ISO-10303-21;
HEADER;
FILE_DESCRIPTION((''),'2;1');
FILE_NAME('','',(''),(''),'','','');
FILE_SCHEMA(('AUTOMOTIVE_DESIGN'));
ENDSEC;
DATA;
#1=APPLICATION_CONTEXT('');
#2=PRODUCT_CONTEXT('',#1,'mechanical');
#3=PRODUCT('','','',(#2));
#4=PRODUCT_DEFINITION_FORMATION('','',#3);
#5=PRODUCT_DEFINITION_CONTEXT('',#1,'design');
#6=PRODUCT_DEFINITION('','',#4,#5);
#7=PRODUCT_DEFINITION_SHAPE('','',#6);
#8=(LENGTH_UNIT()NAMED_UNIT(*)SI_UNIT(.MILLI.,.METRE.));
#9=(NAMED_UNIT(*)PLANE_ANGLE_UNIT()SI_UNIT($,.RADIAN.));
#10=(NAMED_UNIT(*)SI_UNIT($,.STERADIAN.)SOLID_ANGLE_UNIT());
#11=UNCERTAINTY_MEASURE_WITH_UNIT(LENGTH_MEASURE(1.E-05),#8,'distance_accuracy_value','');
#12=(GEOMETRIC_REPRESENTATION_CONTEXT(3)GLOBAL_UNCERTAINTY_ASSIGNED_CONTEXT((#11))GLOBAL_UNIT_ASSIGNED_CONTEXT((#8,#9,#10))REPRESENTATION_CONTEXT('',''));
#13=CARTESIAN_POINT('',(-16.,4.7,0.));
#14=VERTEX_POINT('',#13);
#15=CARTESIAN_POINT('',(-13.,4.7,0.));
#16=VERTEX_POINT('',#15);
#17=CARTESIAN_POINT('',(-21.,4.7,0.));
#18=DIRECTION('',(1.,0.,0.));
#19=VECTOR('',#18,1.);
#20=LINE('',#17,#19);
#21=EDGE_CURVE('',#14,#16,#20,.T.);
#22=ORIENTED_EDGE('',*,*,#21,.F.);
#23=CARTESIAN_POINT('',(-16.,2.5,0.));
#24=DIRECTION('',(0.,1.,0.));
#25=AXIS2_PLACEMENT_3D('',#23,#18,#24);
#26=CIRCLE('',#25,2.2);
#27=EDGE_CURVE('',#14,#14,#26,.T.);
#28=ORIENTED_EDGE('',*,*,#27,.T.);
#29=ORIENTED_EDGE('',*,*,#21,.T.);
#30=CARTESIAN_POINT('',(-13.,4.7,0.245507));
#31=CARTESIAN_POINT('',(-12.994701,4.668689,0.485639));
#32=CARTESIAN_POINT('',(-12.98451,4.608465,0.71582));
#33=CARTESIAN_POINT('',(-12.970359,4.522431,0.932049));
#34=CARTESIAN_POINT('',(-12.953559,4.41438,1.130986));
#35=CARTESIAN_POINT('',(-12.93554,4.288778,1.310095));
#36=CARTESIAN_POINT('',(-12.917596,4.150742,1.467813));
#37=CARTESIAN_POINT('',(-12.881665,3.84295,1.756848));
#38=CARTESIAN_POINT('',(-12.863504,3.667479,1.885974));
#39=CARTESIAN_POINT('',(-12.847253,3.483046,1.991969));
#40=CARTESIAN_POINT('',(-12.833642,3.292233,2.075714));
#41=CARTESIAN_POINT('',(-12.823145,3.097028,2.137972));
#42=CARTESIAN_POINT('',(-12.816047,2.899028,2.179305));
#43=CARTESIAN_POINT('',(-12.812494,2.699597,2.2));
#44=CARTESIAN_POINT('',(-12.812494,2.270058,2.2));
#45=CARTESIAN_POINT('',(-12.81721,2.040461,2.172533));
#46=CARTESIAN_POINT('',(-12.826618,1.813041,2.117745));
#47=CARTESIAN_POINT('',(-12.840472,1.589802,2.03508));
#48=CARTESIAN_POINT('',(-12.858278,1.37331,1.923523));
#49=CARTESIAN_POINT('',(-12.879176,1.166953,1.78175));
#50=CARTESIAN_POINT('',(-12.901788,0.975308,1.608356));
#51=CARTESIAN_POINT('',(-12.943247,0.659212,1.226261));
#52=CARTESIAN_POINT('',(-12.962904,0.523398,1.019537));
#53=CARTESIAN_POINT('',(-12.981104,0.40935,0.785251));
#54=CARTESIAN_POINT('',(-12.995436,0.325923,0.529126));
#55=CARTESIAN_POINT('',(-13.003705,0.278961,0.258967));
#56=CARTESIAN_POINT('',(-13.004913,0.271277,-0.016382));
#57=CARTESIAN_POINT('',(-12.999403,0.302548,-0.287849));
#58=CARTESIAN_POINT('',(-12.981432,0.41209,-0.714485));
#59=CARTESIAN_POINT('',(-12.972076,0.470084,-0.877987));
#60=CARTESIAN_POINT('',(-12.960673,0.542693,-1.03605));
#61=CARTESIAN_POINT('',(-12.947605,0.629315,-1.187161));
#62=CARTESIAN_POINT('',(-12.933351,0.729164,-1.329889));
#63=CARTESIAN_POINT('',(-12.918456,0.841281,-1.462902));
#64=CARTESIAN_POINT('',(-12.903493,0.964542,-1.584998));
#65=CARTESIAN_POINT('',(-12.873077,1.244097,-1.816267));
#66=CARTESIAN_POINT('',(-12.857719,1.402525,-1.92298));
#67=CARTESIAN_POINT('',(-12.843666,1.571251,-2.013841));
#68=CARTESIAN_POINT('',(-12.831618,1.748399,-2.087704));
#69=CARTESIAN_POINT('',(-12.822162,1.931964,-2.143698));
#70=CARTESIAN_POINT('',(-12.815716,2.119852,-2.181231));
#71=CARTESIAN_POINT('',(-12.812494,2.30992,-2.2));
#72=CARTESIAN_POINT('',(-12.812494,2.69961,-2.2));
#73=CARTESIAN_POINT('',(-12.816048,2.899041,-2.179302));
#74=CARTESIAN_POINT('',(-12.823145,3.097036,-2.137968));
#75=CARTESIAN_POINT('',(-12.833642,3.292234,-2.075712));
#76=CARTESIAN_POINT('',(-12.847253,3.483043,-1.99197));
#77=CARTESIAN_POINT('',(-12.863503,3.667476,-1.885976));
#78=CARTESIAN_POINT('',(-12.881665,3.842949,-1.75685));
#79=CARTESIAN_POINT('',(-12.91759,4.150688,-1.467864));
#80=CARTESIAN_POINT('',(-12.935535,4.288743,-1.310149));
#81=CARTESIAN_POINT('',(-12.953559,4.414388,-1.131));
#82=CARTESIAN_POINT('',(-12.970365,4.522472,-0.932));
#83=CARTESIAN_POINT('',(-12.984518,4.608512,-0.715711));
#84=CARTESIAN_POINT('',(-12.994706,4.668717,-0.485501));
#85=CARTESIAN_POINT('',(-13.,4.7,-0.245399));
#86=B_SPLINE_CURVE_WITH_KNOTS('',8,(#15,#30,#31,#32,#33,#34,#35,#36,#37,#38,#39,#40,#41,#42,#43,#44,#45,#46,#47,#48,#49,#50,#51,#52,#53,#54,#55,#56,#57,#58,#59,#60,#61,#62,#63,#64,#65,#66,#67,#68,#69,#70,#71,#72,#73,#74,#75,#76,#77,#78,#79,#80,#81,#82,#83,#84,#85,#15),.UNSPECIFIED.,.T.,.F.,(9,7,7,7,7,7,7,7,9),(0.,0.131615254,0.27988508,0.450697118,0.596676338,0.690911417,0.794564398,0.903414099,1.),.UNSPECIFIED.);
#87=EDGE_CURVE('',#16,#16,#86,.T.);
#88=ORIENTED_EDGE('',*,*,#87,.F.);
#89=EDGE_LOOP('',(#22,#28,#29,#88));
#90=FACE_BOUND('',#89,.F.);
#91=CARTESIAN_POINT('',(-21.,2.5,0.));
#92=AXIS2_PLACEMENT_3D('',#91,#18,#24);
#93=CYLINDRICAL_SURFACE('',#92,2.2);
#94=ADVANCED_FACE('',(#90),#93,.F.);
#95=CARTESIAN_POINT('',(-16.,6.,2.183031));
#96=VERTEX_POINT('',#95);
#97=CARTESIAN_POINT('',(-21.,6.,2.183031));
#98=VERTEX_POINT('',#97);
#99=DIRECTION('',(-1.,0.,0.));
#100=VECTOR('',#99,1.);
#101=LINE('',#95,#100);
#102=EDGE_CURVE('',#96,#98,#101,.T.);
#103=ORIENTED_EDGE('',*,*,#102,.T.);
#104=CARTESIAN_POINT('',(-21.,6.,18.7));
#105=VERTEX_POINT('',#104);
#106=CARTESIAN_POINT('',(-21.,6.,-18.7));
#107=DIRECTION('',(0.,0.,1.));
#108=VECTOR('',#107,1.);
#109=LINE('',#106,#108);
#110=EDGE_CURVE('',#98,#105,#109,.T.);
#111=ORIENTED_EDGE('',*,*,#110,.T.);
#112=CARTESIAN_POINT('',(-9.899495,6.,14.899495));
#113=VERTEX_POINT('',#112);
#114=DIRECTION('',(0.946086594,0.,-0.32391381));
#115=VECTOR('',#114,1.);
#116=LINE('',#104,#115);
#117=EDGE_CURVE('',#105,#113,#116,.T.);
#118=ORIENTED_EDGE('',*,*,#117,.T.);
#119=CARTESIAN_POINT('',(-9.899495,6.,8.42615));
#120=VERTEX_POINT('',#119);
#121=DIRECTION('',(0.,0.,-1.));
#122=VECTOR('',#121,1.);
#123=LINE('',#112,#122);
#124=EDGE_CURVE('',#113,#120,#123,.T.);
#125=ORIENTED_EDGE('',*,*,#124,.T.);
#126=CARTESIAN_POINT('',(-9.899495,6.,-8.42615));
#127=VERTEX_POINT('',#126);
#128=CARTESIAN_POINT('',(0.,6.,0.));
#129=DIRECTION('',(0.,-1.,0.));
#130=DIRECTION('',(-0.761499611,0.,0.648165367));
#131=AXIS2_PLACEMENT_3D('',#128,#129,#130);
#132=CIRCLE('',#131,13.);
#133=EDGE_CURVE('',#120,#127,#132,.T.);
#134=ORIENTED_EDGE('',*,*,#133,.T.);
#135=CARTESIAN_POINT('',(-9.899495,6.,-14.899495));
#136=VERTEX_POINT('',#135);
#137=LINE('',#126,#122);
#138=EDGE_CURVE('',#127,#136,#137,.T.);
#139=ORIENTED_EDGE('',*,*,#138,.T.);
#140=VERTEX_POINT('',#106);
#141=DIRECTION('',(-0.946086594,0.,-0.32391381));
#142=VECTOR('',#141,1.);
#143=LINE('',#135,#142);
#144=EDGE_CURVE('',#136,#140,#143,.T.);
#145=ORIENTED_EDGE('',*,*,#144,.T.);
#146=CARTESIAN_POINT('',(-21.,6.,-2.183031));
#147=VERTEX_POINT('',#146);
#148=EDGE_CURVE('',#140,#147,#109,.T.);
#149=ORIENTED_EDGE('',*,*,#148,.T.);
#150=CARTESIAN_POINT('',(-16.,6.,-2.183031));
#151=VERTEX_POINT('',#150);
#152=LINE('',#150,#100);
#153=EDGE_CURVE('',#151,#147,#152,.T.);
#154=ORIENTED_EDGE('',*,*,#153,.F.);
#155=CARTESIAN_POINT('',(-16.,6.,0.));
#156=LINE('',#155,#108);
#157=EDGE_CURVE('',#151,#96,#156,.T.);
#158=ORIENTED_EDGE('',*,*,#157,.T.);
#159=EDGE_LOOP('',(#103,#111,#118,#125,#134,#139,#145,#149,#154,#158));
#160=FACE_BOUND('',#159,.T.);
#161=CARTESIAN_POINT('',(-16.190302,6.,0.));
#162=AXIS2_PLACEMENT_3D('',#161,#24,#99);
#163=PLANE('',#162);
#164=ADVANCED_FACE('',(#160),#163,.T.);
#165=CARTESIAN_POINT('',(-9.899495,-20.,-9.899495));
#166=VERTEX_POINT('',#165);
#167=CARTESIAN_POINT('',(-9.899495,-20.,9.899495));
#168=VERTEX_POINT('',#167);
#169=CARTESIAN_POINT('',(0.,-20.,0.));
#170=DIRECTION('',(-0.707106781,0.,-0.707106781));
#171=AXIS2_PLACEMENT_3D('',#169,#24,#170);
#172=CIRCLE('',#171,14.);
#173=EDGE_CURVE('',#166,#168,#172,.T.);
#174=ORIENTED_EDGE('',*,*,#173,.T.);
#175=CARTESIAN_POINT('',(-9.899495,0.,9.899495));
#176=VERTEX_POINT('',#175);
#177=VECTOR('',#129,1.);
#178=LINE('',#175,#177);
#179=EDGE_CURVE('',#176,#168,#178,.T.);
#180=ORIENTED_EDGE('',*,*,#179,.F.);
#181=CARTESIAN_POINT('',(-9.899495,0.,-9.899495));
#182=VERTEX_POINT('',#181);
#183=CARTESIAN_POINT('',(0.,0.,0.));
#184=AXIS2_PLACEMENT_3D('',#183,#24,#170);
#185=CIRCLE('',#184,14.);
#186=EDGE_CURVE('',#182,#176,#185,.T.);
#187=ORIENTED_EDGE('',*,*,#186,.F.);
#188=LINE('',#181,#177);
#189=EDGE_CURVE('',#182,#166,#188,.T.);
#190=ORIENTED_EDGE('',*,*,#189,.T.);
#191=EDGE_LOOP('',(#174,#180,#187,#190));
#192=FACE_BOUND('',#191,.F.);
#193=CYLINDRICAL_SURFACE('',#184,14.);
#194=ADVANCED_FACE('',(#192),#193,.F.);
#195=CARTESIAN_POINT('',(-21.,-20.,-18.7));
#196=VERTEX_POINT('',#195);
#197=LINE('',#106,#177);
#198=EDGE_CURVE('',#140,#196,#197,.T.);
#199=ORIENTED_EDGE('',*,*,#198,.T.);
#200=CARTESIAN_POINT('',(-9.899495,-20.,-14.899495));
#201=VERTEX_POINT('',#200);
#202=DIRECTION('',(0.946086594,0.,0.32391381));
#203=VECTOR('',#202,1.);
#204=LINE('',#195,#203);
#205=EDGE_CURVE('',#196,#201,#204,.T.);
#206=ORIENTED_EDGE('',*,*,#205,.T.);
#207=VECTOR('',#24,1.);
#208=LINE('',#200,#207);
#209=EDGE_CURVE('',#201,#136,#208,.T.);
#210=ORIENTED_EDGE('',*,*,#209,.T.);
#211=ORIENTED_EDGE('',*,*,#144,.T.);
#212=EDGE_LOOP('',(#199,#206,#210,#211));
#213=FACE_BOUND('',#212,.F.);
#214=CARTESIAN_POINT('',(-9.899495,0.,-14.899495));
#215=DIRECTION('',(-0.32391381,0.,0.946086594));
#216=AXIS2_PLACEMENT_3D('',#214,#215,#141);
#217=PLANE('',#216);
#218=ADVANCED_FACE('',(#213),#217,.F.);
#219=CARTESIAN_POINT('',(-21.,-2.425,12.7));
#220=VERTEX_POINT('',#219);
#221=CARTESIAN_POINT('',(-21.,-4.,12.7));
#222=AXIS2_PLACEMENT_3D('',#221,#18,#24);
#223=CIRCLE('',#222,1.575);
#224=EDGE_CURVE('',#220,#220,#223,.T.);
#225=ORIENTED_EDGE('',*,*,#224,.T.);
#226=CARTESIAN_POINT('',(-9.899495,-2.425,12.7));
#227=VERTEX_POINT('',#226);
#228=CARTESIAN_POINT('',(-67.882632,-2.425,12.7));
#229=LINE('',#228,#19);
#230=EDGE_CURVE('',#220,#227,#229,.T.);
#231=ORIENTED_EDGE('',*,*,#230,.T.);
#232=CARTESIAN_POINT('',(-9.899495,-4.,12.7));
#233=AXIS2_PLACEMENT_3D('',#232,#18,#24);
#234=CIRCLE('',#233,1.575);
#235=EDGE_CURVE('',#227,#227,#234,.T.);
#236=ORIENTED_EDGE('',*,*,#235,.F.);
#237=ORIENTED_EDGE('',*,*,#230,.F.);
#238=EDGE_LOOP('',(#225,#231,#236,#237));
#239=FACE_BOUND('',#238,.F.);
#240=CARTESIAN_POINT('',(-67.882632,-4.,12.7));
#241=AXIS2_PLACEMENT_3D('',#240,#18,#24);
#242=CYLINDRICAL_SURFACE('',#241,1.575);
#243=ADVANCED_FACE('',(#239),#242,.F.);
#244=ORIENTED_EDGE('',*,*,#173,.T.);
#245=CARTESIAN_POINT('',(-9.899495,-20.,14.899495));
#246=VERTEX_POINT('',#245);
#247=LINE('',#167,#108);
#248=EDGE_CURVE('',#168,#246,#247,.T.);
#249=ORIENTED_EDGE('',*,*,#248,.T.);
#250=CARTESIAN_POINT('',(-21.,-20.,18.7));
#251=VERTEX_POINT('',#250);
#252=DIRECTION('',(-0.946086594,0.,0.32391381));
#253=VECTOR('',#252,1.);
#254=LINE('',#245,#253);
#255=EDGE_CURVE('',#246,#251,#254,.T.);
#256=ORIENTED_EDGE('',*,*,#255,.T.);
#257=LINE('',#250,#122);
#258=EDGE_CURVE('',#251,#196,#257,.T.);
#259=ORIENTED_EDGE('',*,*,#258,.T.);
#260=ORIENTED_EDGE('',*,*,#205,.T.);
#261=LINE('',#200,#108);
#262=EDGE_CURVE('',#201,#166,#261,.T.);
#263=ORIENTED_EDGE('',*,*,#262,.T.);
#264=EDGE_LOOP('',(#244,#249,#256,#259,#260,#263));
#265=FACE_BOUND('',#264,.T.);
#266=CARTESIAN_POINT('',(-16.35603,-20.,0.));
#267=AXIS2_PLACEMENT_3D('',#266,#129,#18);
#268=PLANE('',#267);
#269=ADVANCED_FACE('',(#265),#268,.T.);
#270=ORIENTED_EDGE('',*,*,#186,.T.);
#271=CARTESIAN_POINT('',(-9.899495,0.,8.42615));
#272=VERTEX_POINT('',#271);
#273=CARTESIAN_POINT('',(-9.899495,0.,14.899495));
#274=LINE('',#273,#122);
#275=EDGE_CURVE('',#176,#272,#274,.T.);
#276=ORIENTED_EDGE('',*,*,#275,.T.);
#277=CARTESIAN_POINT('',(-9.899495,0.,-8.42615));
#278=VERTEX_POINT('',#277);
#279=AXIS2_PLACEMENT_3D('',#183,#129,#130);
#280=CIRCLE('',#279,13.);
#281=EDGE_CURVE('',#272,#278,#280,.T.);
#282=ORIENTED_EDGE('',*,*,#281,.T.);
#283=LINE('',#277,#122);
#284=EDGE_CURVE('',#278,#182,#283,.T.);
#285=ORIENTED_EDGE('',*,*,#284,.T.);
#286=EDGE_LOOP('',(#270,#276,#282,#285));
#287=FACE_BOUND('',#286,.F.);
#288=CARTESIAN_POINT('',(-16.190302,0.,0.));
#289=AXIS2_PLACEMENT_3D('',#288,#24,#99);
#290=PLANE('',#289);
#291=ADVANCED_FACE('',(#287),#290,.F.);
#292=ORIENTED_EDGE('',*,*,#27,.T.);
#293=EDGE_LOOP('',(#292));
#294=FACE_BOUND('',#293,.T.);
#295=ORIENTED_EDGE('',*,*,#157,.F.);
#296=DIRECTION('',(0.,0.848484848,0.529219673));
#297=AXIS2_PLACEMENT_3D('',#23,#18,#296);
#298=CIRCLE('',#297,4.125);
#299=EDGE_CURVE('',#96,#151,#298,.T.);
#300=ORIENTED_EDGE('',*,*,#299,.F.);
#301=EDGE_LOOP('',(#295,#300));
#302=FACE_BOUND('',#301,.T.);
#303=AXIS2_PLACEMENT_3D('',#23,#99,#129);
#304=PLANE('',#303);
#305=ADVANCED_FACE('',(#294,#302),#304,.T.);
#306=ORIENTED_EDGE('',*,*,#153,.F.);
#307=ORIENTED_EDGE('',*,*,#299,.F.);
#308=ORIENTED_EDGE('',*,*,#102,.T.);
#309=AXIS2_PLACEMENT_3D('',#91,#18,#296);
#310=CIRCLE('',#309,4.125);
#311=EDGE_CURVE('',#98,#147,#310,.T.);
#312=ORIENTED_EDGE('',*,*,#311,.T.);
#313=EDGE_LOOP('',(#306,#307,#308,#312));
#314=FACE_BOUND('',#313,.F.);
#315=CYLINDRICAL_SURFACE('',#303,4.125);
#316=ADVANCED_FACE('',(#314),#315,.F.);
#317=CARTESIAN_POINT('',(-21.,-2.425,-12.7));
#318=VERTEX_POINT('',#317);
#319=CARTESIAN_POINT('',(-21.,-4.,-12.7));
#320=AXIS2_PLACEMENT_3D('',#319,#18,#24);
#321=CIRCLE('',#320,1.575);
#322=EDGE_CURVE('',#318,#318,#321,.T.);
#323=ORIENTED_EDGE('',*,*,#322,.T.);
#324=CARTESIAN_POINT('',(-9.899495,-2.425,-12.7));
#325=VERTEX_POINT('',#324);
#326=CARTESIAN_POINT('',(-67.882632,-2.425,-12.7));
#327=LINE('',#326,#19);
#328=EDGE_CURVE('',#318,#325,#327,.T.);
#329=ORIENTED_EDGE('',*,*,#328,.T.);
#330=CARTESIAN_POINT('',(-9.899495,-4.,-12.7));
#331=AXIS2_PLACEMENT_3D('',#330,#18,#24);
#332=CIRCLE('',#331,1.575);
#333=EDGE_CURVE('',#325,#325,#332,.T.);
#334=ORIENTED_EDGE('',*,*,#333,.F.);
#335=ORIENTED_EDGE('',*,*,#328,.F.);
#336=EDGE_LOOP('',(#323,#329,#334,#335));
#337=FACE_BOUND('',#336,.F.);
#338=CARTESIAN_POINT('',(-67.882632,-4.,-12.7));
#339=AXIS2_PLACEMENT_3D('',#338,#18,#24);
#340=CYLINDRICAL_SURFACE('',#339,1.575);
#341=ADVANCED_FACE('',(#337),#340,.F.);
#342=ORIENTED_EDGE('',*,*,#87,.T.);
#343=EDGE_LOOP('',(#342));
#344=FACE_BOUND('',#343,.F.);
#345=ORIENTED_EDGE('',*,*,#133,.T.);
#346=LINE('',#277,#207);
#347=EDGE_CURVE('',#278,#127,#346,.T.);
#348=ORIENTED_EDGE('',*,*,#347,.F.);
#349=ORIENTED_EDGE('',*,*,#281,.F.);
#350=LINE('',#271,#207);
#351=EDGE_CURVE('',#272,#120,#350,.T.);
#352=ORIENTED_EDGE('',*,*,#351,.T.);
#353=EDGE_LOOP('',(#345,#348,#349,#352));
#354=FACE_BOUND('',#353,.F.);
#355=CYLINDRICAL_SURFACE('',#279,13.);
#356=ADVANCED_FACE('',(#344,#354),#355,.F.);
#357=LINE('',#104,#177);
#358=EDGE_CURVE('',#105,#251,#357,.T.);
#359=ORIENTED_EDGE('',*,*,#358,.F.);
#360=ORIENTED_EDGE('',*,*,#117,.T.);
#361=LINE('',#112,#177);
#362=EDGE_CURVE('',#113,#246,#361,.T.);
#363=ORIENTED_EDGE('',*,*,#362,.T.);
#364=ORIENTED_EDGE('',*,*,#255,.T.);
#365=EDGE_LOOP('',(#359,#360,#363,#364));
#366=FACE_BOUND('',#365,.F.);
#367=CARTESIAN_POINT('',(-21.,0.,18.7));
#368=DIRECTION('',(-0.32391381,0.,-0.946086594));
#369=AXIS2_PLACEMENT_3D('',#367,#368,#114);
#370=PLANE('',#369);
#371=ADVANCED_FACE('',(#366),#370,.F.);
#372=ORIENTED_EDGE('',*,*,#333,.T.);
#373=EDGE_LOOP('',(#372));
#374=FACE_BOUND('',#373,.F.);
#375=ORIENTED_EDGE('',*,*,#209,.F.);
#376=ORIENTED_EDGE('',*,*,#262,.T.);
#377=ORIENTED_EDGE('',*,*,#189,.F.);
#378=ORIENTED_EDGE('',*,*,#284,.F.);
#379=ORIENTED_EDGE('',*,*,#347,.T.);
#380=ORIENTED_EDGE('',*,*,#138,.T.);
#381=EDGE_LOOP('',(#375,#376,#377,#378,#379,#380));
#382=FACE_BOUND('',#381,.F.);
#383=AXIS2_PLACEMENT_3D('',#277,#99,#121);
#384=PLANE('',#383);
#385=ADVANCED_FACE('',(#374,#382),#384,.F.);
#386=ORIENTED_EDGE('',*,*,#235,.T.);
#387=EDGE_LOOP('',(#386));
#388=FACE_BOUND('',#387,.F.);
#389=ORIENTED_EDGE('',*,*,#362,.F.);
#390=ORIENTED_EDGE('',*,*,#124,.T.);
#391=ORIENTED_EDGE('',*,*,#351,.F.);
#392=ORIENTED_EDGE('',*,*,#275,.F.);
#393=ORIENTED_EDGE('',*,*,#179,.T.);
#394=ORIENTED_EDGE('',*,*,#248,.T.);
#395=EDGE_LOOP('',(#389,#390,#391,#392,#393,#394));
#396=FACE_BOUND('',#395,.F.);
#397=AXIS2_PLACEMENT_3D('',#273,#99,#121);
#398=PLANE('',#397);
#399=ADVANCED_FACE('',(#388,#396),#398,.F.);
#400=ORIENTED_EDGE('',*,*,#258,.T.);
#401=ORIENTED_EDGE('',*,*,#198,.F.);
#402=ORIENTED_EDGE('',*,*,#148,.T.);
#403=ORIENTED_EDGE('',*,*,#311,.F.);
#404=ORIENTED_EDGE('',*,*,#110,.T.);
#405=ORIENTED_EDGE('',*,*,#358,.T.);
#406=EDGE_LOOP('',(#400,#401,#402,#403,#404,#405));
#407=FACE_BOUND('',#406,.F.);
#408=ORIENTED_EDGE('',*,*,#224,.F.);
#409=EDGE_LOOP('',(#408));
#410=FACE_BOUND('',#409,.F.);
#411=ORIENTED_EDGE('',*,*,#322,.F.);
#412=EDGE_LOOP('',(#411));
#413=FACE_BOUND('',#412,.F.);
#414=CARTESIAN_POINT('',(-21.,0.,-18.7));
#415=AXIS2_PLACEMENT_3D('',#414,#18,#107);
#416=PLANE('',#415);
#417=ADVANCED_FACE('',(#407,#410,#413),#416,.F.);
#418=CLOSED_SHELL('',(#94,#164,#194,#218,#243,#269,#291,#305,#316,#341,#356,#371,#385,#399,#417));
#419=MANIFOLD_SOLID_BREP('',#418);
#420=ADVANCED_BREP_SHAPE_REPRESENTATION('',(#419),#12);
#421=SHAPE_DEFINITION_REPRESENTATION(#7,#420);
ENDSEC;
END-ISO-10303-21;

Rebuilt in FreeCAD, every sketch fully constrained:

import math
import FreeCAD as App
import Part
import Sketcher
from FreeCAD import Vector

doc = App.newDocument("Part")
body = doc.addObject("PartDesign::Body", "Body")

# Sketch on XZ plane
sketch1 = body.newObject("Sketcher::SketchObject", "Sketch")
sketch1.AttachmentSupport = (doc.getObject("XZ_Plane"), [""])
sketch1.MapMode = "FlatFace"
sketch1.addGeometry([
    Part.ArcOfCircle(Part.Circle(Vector(0, 0, 0), Vector(0, 0, 1), 14), math.radians(135), math.radians(225)),  # 0
    Part.LineSegment(Vector(-9.899495, 9.899495, 0), Vector(-9.899495, 14.899495, 0)),  # 1
    Part.LineSegment(Vector(-9.899495, 14.899495, 0), Vector(-21, 18.7, 0)),  # 2
    Part.LineSegment(Vector(-21, 18.7, 0), Vector(-21, -18.7, 0)),  # 3
    Part.LineSegment(Vector(-21, -18.7, 0), Vector(-9.899495, -14.899495, 0)),  # 4
    Part.LineSegment(Vector(-9.899495, -14.899495, 0), Vector(-9.899495, -9.899495, 0)),  # 5
], False)
sketch1.addConstraint([
    Sketcher.Constraint("Coincident", 0, 1, 1, 1),
    Sketcher.Constraint("Coincident", 1, 2, 2, 1),
    Sketcher.Constraint("Coincident", 2, 2, 3, 1),
    Sketcher.Constraint("Coincident", 3, 2, 4, 1),
    Sketcher.Constraint("Coincident", 4, 2, 5, 1),
    Sketcher.Constraint("Coincident", 5, 2, 0, 2),
    Sketcher.Constraint("Vertical", 1),
    Sketcher.Constraint("Vertical", 3),
    Sketcher.Constraint("Vertical", 5),
    Sketcher.Constraint("Coincident", 0, 3, -1, 1),
    Sketcher.Constraint("Symmetric", 1, 2, 4, 2, -1),
    Sketcher.Constraint("Equal", 2, 4),
    Sketcher.Constraint("Radius", 0, 14.0),
    Sketcher.Constraint("DistanceY", 1, 1, 1, 2, 5.0),
    Sketcher.Constraint("DistanceY", 3, 2, 3, 1, 37.4),
    Sketcher.Constraint("DistanceX", 2, 2, -1, 1, 21.0),
    Sketcher.Constraint("DistanceY", 4, 2, 0, 1, 24.79899),
])
pad1 = body.newObject("PartDesign::Pad", "Pad")
pad1.Profile = sketch1
pad1.Length = 20

# Sketch on XZ plane
sketch2 = body.newObject("Sketcher::SketchObject", "Sketch001")
sketch2.AttachmentSupport = (doc.getObject("XZ_Plane"), [""])
sketch2.MapMode = "FlatFace"
sketch2.addGeometry([
    Part.LineSegment(Vector(-9.899495, 14.899495, 0), Vector(-9.899495, 8.42615, 0)),  # 0
    Part.ArcOfCircle(Part.Circle(Vector(0, 0, 0), Vector(0, 0, 1), 13), math.radians(139.596579), math.radians(220.403421)),  # 1
    Part.LineSegment(Vector(-9.899495, -8.42615, 0), Vector(-9.899495, -14.899495, 0)),  # 2
    Part.LineSegment(Vector(-9.899495, -14.899495, 0), Vector(-21, -18.7, 0)),  # 3
    Part.LineSegment(Vector(-21, -18.7, 0), Vector(-21, 18.7, 0)),  # 4
    Part.LineSegment(Vector(-21, 18.7, 0), Vector(-9.899495, 14.899495, 0)),  # 5
], False)
sketch2.addConstraint([
    Sketcher.Constraint("Coincident", 0, 2, 1, 1),
    Sketcher.Constraint("Coincident", 1, 2, 2, 1),
    Sketcher.Constraint("Coincident", 2, 2, 3, 1),
    Sketcher.Constraint("Coincident", 3, 2, 4, 1),
    Sketcher.Constraint("Coincident", 4, 2, 5, 1),
    Sketcher.Constraint("Coincident", 5, 2, 0, 1),
    Sketcher.Constraint("Vertical", 0),
    Sketcher.Constraint("Vertical", 2),
    Sketcher.Constraint("Vertical", 4),
    Sketcher.Constraint("Coincident", 1, 3, -1, 1),
    Sketcher.Constraint("Symmetric", 2, 2, 5, 2, -1),
    Sketcher.Constraint("Equal", 3, 5),
    Sketcher.Constraint("Radius", 1, 13.0),
    Sketcher.Constraint("DistanceY", 4, 1, 4, 2, 37.4),
    Sketcher.Constraint("DistanceX", 3, 2, -1, 1, 21.0),
    Sketcher.Constraint("DistanceY", 1, 2, 0, 2, 16.8523),
    Sketcher.Constraint("DistanceY", 0, 2, 0, 1, 6.473345),
])
pad2 = body.newObject("PartDesign::Pad", "Pad001")
pad2.Profile = sketch2
pad2.Length = 6
pad2.Reversed = True

# Sketch on YZ plane
sketch3 = body.newObject("Sketcher::SketchObject", "Sketch002")
sketch3.AttachmentSupport = (doc.getObject("YZ_Plane"), [""])
sketch3.MapMode = "FlatFace"
sketch3.AttachmentOffset = App.Placement(Vector(0, 0, -21), App.Rotation())
sketch3.addGeometry([
    Part.Circle(Vector(-4, 12.7, 0), Vector(0, 0, 1), 1.575),
    Part.Circle(Vector(-4, -12.7, 0), Vector(0, 0, 1), 1.575),
], False)
sketch3.addConstraint([
    Sketcher.Constraint("Equal", 0, 1),
    Sketcher.Constraint("Symmetric", 0, 3, 1, 3, -1),
    Sketcher.Constraint("Diameter", 0, 3.15),
    Sketcher.Constraint("DistanceX", 0, 3, -1, 1, 4.0),
    Sketcher.Constraint("DistanceY", -1, 1, 0, 3, 12.7),
])
doc.recompute()
hole = body.newObject("PartDesign::Hole", "Hole")
hole.Profile = sketch3
hole.ThreadType = "None"
hole.Diameter = 3.15
hole.DepthType = "ThroughAll"
hole.Reversed = True

# Sketch on YZ plane
sketch4 = body.newObject("Sketcher::SketchObject", "Sketch003")
sketch4.AttachmentSupport = (doc.getObject("YZ_Plane"), [""])
sketch4.MapMode = "FlatFace"
sketch4.AttachmentOffset = App.Placement(Vector(0, 0, -21), App.Rotation())
sketch4.addGeometry(Part.Circle(Vector(2.5, 0, 0), Vector(0, 0, 1), 2.2), False)
sketch4.addConstraint([
    Sketcher.Constraint("PointOnObject", 0, 3, -1),
    Sketcher.Constraint("Diameter", 0, 4.4),
    Sketcher.Constraint("DistanceX", -1, 1, 0, 3, 2.5),
])
doc.recompute()
hole2 = body.newObject("PartDesign::Hole", "Hole001")
hole2.Profile = sketch4
hole2.ThreadType = "None"
hole2.Diameter = 4.4
hole2.DepthType = "ThroughAll"
hole2.HoleCutType = "Counterbore"
hole2.HoleCutDiameter = 8.25
hole2.HoleCutDepth = 5
hole2.Reversed = True

doc.recompute()
